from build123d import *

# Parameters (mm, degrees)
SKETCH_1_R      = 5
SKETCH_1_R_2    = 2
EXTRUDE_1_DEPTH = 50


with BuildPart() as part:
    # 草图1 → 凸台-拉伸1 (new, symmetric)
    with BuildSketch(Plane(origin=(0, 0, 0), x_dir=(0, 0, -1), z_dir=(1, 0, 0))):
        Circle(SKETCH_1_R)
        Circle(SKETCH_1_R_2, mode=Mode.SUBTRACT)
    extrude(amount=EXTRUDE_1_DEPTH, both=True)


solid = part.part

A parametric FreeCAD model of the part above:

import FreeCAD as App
import Part
import Sketcher
Q = App.Units.Quantity

doc = App.newDocument("Part")
body = doc.addObject("PartDesign::Body", "Body")

# Sketch on YZ plane
sketch1 = body.newObject("Sketcher::SketchObject", "Sketch")
sketch1.AttachmentSupport = (doc.getObject("YZ_Plane"), [""])
sketch1.MapMode = "FlatFace"
sketch1.addGeometry([
    Part.Circle(App.Vector(0, 0, 0), App.Vector(0, 0, 1), 5),
    Part.Circle(App.Vector(0, 0, 0), App.Vector(0, 0, 1), 2),
], False)
sketch1.addConstraint([
    Sketcher.Constraint("Coincident", 0, 3, -1, 1),
    Sketcher.Constraint("Coincident", 1, 3, -1, 1),
    Sketcher.Constraint("Diameter", 0, Q("10 mm")),
    Sketcher.Constraint("Diameter", 1, Q("4 mm")),
])
pad1 = body.newObject("PartDesign::Pad", "Pad")
pad1.Profile = sketch1
pad1.Length = 100
pad1.Midplane = True

doc.recompute()
